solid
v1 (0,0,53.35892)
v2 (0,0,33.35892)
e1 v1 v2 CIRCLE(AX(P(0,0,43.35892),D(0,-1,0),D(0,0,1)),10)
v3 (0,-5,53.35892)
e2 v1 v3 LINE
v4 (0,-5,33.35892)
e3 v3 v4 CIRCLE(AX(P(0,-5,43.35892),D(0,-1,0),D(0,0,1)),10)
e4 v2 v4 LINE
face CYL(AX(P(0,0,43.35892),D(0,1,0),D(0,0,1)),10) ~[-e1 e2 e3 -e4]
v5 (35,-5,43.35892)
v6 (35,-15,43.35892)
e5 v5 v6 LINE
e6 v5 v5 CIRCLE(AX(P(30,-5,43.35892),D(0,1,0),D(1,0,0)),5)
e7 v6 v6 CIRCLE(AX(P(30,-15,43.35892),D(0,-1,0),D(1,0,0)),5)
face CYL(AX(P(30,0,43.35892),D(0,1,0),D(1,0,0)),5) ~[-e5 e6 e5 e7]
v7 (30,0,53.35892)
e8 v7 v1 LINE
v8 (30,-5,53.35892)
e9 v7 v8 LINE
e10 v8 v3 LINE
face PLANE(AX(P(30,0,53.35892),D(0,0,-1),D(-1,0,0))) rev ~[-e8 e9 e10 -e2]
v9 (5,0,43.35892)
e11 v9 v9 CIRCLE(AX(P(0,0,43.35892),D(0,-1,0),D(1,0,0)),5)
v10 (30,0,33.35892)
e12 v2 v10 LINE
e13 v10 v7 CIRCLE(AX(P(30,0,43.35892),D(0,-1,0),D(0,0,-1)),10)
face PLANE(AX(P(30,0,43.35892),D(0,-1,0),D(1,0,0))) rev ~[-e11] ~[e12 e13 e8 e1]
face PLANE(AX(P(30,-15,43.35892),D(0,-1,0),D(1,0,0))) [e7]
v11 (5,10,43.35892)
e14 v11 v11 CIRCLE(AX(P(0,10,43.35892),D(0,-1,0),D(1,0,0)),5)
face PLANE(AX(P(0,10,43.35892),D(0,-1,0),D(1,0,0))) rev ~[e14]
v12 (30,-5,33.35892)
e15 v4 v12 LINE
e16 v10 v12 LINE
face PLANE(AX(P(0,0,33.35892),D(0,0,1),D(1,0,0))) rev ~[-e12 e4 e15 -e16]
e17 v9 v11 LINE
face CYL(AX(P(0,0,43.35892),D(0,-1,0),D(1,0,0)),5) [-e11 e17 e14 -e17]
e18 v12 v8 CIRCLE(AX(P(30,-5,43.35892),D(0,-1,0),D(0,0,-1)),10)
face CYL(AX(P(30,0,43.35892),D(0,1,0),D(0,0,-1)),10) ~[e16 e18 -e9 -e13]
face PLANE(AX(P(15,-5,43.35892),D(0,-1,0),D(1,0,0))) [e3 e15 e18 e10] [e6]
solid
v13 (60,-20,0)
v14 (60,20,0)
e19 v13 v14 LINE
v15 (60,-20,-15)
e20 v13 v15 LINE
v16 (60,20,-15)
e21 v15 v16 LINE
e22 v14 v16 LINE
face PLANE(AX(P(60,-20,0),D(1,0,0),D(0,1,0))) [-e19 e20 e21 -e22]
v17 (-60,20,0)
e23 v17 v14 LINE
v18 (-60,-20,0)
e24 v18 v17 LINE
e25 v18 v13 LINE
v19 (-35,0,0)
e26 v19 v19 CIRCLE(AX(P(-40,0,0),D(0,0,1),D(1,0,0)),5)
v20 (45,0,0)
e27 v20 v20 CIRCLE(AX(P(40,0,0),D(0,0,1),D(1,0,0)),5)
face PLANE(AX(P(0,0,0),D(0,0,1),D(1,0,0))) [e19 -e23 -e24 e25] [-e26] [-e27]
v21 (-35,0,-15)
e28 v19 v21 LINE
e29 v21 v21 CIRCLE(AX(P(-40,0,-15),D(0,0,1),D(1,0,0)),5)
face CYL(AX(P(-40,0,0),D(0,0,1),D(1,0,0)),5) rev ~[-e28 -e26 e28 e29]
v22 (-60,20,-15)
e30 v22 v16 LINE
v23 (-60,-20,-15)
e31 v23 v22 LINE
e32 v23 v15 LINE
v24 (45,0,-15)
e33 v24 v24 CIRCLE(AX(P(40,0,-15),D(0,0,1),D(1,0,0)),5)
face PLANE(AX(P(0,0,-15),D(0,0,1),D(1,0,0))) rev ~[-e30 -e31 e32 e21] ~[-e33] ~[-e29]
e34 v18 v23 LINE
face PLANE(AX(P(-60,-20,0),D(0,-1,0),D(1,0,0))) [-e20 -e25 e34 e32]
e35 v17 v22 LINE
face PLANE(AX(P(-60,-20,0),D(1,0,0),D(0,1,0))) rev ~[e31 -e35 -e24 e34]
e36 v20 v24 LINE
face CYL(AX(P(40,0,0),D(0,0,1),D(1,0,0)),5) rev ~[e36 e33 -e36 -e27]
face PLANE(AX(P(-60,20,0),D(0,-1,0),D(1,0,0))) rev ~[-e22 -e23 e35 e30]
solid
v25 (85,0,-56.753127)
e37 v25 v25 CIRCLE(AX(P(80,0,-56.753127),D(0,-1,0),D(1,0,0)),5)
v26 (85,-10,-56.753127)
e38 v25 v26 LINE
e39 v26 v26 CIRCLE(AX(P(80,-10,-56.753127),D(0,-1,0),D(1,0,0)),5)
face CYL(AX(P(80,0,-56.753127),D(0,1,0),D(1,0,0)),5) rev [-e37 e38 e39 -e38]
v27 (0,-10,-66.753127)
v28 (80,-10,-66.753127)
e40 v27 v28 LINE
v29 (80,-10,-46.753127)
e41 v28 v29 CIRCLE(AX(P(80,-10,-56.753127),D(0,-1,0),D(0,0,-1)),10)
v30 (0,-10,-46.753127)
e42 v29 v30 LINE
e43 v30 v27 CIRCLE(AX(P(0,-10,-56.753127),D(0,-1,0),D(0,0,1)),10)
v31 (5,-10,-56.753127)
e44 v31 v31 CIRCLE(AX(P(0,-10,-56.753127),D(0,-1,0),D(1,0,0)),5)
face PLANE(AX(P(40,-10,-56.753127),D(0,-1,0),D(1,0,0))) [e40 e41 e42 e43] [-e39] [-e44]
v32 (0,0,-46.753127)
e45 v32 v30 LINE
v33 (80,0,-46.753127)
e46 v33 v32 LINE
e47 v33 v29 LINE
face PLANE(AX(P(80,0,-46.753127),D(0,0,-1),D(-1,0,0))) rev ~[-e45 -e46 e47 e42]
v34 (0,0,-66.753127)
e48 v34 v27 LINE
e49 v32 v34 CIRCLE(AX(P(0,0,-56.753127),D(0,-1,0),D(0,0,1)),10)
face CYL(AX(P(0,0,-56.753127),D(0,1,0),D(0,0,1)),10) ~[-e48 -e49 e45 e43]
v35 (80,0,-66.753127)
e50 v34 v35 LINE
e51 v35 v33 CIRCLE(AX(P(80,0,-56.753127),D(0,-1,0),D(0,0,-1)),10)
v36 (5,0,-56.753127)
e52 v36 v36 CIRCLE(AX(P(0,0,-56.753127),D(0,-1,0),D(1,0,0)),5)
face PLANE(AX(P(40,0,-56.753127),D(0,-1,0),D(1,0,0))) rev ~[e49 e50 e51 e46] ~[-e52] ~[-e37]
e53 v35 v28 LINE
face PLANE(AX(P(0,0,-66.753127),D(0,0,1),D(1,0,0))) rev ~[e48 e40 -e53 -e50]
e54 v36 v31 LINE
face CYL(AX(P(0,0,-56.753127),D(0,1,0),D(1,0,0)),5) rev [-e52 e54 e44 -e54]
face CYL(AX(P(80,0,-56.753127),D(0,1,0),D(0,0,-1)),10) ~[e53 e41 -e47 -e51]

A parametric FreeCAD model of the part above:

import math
import FreeCAD as App
import Part
import Sketcher
Q = App.Units.Quantity


def add_polygon(sketch, points):
    """Adds a closed chain of lines whose ends are joined by coincident constraints."""
    first, n = sketch.GeometryCount, len(points)
    for a, b in zip(points, points[1:] + points[:1]):
        sketch.addGeometry(Part.LineSegment(App.Vector(*a, 0), App.Vector(*b, 0)), False)
    for i in range(n):
        sketch.addConstraint(Sketcher.Constraint("Coincident", first + i, 2, first + (i + 1) % n, 1))

doc = App.newDocument("Part")
params = doc.addObject("Spreadsheet::Sheet", "Params")
for row, (alias, value) in enumerate([
    ("sketch1_diameter", "10 mm"),
    ("sketch1_width", "120 mm"),
    ("sketch1_height", "40 mm"),
    ("pad1_length", "15 mm"),
    ("sketch2_radius", "10 mm"),
    ("sketch2_width", "30 mm"),
    ("pad2_length", "5 mm"),
    ("sketch3_diameter", "10 mm"),
    ("pad3_length", "15 mm"),
    ("sketch4_diameter", "10 mm"),
    ("pad4_length", "10 mm"),
    ("sketch5_diameter", "10 mm"),
    ("sketch5_radius", "10 mm"),
    ("sketch5_width", "80 mm"),
    ("pad5_length", "10 mm"),
], start=1):
    params.set(f"A{row}", alias)
    params.set(f"B{row}", "=" + value)
    params.setAlias(f"B{row}", alias)

body = doc.addObject("PartDesign::Body", "Body")

# Sketch on XY plane
sketch1 = doc.addObject("Sketcher::SketchObject", "Sketch")
body.addObject(sketch1)
sketch1.AttachmentSupport = (doc.XY_Plane, [""])
sketch1.MapMode = "FlatFace"
add_polygon(sketch1, [(-60, 20), (-60, -20), (60, -20), (60, 20)])  # lines 0-3
sketch1.addGeometry(Part.Circle(App.Vector(-40, 0, 0), App.Vector(0, 0, 1), 5), False)  # 4
sketch1.addGeometry(Part.Circle(App.Vector(40, 0, 0), App.Vector(0, 0, 1), 5), False)  # 5
sketch1.addConstraint([
    Sketcher.Constraint("Vertical", 0),
    Sketcher.Constraint("Horizontal", 1),
    Sketcher.Constraint("Vertical", 2),
    Sketcher.Constraint("Horizontal", 3),
    Sketcher.Constraint("Equal", 4, 5),
    Sketcher.Constraint("Symmetric", 4, 3, 5, 3, -1, 1),
    Sketcher.Constraint("Symmetric", 0, 2, 2, 2, -1, 1),
    Sketcher.Constraint("PointOnObject", 4, 3, -1),
    Sketcher.Constraint("Diameter", 4, Q("10 mm")),
    Sketcher.Constraint("DistanceX", 1, 1, 1, 2, Q("120 mm")),
    Sketcher.Constraint("DistanceY", 0, 2, 0, 1, Q("40 mm")),
    Sketcher.Constraint("DistanceX", 4, 3, -1, 1, Q("40 mm")),
])
sketch1.setExpression("Constraints[12]", "Params.sketch1_diameter")
sketch1.setExpression("Constraints[13]", "Params.sketch1_width")
sketch1.setExpression("Constraints[14]", "Params.sketch1_height")
pad1 = doc.addObject("PartDesign::Pad", "Pad")
body.addObject(pad1)
pad1.Profile = sketch1
pad1.setExpression("Length", "Params.pad1_length")
pad1.Reversed = True
body2 = doc.addObject("PartDesign::Body", "Body001")

# Sketch on XZ plane
sketch2 = doc.addObject("Sketcher::SketchObject", "Sketch001")
body2.addObject(sketch2)
sketch2.AttachmentSupport = (doc.getObject("XZ_Plane001"), [""])
sketch2.MapMode = "FlatFace"
sketch2.addGeometry([
    Part.LineSegment(App.Vector(30, 53.35892, 0), App.Vector(0, 53.35892, 0)),
    Part.ArcOfCircle(Part.Circle(App.Vector(0, 43.35892, 0), App.Vector(0, 0, 1), 10), math.radians(90), math.radians(270)),
    Part.LineSegment(App.Vector(0, 33.35892, 0), App.Vector(30, 33.35892, 0)),
    Part.ArcOfCircle(Part.Circle(App.Vector(30, 43.35892, 0), App.Vector(0, 0, 1), 10), math.radians(-90), math.radians(90)),
], False)
sketch2.addConstraint([
    Sketcher.Constraint("Tangent", 0, 2, 1, 1),
    Sketcher.Constraint("Tangent", 1, 2, 2, 1),
    Sketcher.Constraint("Tangent", 2, 2, 3, 1),
    Sketcher.Constraint("Tangent", 3, 2, 0, 1),
    Sketcher.Constraint("Horizontal", 0),
    Sketcher.Constraint("Horizontal", 2),
    Sketcher.Constraint("PointOnObject", 1, 3, -2),
    Sketcher.Constraint("Radius", 1, Q("10 mm")),
    Sketcher.Constraint("DistanceX", 0, 2, 0, 1, Q("30 mm")),
    Sketcher.Constraint("DistanceY", -1, 1, 1, 3, Q("43.35892 mm")),
])
sketch2.setExpression("Constraints[7]", "Params.sketch2_radius")
sketch2.setExpression("Constraints[8]", "Params.sketch2_width")
pad2 = doc.addObject("PartDesign::Pad", "Pad001")
body2.addObject(pad2)
pad2.Profile = sketch2
pad2.setExpression("Length", "Params.pad2_length")

# Sketch on XZ plane
sketch3 = doc.addObject("Sketcher::SketchObject", "Sketch002")
body2.addObject(sketch3)
sketch3.AttachmentSupport = (doc.getObject("XZ_Plane001"), [""])
sketch3.MapMode = "FlatFace"
sketch3.addGeometry(Part.Circle(App.Vector(30, 43.35892, 0), App.Vector(0, 0, 1), 5), False)
sketch3.addConstraint([
    Sketcher.Constraint("Diameter", 0, Q("10 mm")),
    Sketcher.Constraint("DistanceX", -1, 1, 0, 3, Q("30 mm")),
    Sketcher.Constraint("DistanceY", -1, 1, 0, 3, Q("43.35892 mm")),
])
sketch3.setExpression("Constraints[0]", "Params.sketch3_diameter")
pad3 = doc.addObject("PartDesign::Pad", "Pad002")
body2.addObject(pad3)
pad3.Profile = sketch3
pad3.setExpression("Length", "Params.pad3_length")

# Sketch on XZ plane
sketch4 = doc.addObject("Sketcher::SketchObject", "Sketch003")
body2.addObject(sketch4)
sketch4.AttachmentSupport = (doc.getObject("XZ_Plane001"), [""])
sketch4.MapMode = "FlatFace"
sketch4.addGeometry(Part.Circle(App.Vector(0, 43.35892, 0), App.Vector(0, 0, 1), 5), False)
sketch4.addConstraint([
    Sketcher.Constraint("PointOnObject", 0, 3, -2),
    Sketcher.Constraint("Diameter", 0, Q("10 mm")),
    Sketcher.Constraint("DistanceY", -1, 1, 0, 3, Q("43.35892 mm")),
])
sketch4.setExpression("Constraints[1]", "Params.sketch4_diameter")
pad4 = doc.addObject("PartDesign::Pad", "Pad003")
body2.addObject(pad4)
pad4.Profile = sketch4
pad4.setExpression("Length", "Params.pad4_length")
pad4.Reversed = True
body3 = doc.addObject("PartDesign::Body", "Body002")

# Sketch on XZ plane
sketch5 = doc.addObject("Sketcher::SketchObject", "Sketch004")
body3.addObject(sketch5)
sketch5.AttachmentSupport = (doc.getObject("XZ_Plane002"), [""])
sketch5.MapMode = "FlatFace"
sketch5.addGeometry([
    Part.LineSegment(App.Vector(80, -46.753127, 0), App.Vector(0, -46.753127, 0)),  # 0
    Part.ArcOfCircle(Part.Circle(App.Vector(0, -56.753127, 0), App.Vector(0, 0, 1), 10), math.radians(90), math.radians(270)),  # 1
    Part.LineSegment(App.Vector(0, -66.753127, 0), App.Vector(80, -66.753127, 0)),  # 2
    Part.ArcOfCircle(Part.Circle(App.Vector(80, -56.753127, 0), App.Vector(0, 0, 1), 10), math.radians(-90), math.radians(90)),  # 3
    Part.Circle(App.Vector(0, -56.753127, 0), App.Vector(0, 0, 1), 5),  # 4
    Part.Circle(App.Vector(80, -56.753127, 0), App.Vector(0, 0, 1), 5),  # 5
], False)
sketch5.addConstraint([
    Sketcher.Constraint("Tangent", 0, 2, 1, 1),
    Sketcher.Constraint("Tangent", 1, 2, 2, 1),
    Sketcher.Constraint("Tangent", 2, 2, 3, 1),
    Sketcher.Constraint("Tangent", 3, 2, 0, 1),
    Sketcher.Constraint("Horizontal", 0),
    Sketcher.Constraint("Horizontal", 2),
    Sketcher.Constraint("Coincident", 4, 3, 1, 3),
    Sketcher.Constraint("Coincident", 5, 3, 3, 3),
    Sketcher.Constraint("Equal", 4, 5),
    Sketcher.Constraint("PointOnObject", 1, 3, -2),
    Sketcher.Constraint("Diameter", 4, Q("10 mm")),
    Sketcher.Constraint("Radius", 1, Q("10 mm")),
    Sketcher.Constraint("DistanceX", 0, 2, 0, 1, Q("80 mm")),
    Sketcher.Constraint("DistanceY", 1, 3, -1, 1, Q("56.753127 mm")),
])
sketch5.setExpression("Constraints[10]", "Params.sketch5_diameter")
sketch5.setExpression("Constraints[11]", "Params.sketch5_radius")
sketch5.setExpression("Constraints[12]", "Params.sketch5_width")
pad5 = doc.addObject("PartDesign::Pad", "Pad004")
body3.addObject(pad5)
pad5.Profile = sketch5
pad5.setExpression("Length", "Params.pad5_length")

doc.recompute()
